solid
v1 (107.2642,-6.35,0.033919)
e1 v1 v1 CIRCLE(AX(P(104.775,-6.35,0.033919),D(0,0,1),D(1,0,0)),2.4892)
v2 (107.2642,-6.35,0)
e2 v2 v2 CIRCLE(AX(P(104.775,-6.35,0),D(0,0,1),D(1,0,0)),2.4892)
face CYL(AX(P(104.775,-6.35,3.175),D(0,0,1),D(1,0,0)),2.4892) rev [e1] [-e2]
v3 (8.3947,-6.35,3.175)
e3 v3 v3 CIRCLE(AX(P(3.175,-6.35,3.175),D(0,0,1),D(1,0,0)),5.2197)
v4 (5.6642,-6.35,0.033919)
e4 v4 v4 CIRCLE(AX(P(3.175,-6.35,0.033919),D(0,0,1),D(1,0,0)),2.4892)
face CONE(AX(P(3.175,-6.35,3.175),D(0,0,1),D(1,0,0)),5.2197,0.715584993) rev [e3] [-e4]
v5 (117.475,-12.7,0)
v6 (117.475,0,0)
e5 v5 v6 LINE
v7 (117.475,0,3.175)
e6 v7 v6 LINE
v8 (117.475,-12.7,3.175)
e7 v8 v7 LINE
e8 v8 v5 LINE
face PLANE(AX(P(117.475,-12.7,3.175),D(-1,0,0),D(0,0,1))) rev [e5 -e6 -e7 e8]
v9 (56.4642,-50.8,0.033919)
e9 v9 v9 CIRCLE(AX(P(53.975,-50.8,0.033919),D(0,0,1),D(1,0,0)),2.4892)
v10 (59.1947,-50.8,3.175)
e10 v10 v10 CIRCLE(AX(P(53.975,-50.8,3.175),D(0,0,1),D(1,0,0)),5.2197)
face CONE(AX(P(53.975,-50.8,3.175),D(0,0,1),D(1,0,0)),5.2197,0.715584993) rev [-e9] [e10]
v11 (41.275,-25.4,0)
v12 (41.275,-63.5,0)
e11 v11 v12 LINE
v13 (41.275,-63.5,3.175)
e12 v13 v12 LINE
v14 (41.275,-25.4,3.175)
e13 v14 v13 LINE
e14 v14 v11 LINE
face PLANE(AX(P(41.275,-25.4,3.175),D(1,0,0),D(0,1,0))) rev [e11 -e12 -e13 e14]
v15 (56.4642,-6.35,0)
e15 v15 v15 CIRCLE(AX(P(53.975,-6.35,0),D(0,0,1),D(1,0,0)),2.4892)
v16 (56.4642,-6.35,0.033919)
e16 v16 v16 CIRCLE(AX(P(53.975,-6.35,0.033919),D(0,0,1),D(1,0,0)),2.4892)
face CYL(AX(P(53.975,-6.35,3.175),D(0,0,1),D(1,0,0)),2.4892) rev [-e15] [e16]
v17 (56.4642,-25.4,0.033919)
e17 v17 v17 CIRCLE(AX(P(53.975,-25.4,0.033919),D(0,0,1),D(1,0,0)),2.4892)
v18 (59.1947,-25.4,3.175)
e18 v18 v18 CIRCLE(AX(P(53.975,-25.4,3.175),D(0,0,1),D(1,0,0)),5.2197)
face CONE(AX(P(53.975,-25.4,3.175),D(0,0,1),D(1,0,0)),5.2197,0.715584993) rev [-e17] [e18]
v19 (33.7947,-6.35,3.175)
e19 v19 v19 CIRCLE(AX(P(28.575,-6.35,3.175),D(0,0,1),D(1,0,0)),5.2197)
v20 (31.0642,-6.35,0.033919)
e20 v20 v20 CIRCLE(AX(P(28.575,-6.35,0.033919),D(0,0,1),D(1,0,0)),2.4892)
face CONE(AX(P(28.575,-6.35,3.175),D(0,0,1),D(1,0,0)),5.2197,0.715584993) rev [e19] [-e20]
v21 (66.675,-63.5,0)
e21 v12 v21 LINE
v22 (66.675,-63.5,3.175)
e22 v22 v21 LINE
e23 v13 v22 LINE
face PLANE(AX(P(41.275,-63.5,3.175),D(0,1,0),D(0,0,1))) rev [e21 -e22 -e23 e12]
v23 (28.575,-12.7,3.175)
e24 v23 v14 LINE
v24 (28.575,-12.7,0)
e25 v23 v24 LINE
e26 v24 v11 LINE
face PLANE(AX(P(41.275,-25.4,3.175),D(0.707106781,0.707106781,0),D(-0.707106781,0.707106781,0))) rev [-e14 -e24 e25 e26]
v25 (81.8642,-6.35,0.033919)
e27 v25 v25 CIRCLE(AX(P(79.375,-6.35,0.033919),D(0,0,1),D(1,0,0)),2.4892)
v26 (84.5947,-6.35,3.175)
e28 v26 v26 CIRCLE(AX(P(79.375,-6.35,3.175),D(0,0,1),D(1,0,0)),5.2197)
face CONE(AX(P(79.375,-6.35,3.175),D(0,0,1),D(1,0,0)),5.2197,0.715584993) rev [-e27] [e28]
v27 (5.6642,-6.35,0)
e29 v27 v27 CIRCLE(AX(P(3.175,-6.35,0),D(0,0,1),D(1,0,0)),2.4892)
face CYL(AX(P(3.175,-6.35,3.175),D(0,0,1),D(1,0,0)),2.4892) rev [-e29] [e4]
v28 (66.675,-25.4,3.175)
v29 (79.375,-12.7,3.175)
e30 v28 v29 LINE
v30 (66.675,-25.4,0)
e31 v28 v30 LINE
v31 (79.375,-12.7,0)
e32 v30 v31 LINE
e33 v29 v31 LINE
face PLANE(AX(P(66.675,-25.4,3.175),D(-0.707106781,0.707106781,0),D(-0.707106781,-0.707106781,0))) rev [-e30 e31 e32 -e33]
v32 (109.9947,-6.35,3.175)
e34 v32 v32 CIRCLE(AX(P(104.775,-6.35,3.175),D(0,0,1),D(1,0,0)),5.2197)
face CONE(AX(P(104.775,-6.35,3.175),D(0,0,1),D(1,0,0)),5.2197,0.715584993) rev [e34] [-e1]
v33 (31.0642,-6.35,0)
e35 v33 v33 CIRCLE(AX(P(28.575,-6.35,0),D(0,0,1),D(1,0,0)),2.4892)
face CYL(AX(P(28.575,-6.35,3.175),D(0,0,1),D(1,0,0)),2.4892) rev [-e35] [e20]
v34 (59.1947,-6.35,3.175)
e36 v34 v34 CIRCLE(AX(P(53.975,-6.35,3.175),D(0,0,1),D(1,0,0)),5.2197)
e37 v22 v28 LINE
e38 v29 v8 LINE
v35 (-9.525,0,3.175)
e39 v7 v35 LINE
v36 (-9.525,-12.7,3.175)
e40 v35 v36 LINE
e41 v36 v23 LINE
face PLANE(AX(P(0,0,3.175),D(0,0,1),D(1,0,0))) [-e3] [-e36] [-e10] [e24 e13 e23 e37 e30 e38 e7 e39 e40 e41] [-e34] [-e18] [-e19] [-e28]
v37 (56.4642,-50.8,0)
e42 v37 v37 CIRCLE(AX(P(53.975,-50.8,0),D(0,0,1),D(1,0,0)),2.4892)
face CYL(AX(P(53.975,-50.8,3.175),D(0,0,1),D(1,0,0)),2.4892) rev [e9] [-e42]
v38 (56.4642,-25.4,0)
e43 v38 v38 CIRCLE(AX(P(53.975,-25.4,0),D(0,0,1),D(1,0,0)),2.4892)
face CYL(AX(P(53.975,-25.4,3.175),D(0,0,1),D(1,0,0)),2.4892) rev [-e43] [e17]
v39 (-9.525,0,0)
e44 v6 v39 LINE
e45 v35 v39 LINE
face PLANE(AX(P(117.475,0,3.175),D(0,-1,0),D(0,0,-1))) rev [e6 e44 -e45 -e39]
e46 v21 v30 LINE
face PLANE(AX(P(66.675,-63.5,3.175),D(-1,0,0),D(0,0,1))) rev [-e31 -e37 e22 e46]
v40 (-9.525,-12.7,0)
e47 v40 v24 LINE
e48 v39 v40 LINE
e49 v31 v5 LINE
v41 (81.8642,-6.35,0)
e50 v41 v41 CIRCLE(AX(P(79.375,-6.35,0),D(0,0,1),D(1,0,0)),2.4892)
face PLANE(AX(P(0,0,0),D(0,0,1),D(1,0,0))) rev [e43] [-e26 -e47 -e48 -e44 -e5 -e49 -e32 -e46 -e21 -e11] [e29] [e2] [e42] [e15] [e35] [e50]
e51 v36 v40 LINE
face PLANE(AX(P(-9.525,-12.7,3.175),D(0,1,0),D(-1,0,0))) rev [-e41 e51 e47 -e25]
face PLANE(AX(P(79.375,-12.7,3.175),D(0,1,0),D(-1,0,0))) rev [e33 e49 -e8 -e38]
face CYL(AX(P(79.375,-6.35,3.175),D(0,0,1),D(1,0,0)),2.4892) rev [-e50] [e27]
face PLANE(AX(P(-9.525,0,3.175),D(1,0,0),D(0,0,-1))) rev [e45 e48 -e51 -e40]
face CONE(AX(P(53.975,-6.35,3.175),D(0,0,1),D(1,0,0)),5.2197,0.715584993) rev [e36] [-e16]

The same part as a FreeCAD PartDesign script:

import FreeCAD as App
import Part
import Sketcher
Q = App.Units.Quantity


def add_polygon(sketch, points):
    """Adds a closed chain of lines whose ends are joined by coincident constraints."""
    first, n = sketch.GeometryCount, len(points)
    for a, b in zip(points, points[1:] + points[:1]):
        sketch.addGeometry(Part.LineSegment(App.Vector(*a, 0), App.Vector(*b, 0)), False)
    for i in range(n):
        sketch.addConstraint(Sketcher.Constraint("Coincident", first + i, 2, first + (i + 1) % n, 1))

doc = App.newDocument("Part")
body = doc.addObject("PartDesign::Body", "Body")

# Sketch on XY plane
sketch1 = doc.addObject("Sketcher::SketchObject", "Sketch")
body.addObject(sketch1)
sketch1.AttachmentSupport = (doc.XY_Plane, [""])
sketch1.MapMode = "FlatFace"
add_polygon(sketch1, [(41, -25), (41, -64), (67, -64), (67, -25), (79, -13), (117, -13), (117, 0), (-10, 0), (-10, -13), (29, -13)])  # lines 0-9
sketch1.addConstraint([
    Sketcher.Constraint("Vertical", 0),
    Sketcher.Constraint("Horizontal", 1),
    Sketcher.Constraint("Vertical", 2),
    Sketcher.Constraint("Horizontal", 4),
    Sketcher.Constraint("Vertical", 5),
    Sketcher.Constraint("Horizontal", 6),
    Sketcher.Constraint("Vertical", 7),
    Sketcher.Constraint("Horizontal", 8),
    Sketcher.Constraint("PointOnObject", 5, 2, -1),
    Sketcher.Constraint("Perpendicular", 3, 9),
    Sketcher.Constraint("Horizontal", 4, 2, 7, 2),
    Sketcher.Constraint("Horizontal", 2, 2, 9, 2),
    Sketcher.Constraint("Equal", 4, 8),
    Sketcher.Constraint("Equal", 8, 0),
    Sketcher.Constraint("Equal", 3, 9),
    Sketcher.Constraint("DistanceX", 1, 1, 1, 2, Q("1 in")),
    Sketcher.Constraint("DistanceX", 6, 2, 6, 1, Q("5 in")),
    Sketcher.Constraint("DistanceX", 4, 1, 4, 2, Q("1.5 in")),
    Sketcher.Constraint("DistanceY", 5, 1, 5, 2, Q("0.5 in")),
    Sketcher.Constraint("DistanceX", -1, 1, 0, 2, Q("1.625 in")),
])
pad1 = doc.addObject("PartDesign::Pad", "Pad")
body.addObject(pad1)
pad1.Profile = sketch1
pad1.Length = Q("0.125 in")

# Sketch on YZ plane
sketch2 = doc.addObject("Sketcher::SketchObject", "Sketch001")
body.addObject(sketch2)
sketch2.AttachmentSupport = (doc.YZ_Plane, [""])
sketch2.MapMode = "FlatFace"
sketch2.AttachmentOffset = App.Placement(App.Vector(0, 0, 0.125 * 25.4), App.Rotation())
add_polygon(sketch2, [(-6.35, 0), (-6.35, 3.175), (-11.57, 3.175), (-8.839, 0.034), (-8.839, 0)])  # lines 0-4
sketch2.addGeometry(Part.LineSegment(App.Vector(-6.35, 3.175, 0), App.Vector(-6.35, 0, 0)), True)  # axis
sketch2.addConstraint([
    Sketcher.Constraint("Vertical", 0),
    Sketcher.Constraint("Horizontal", 1),
    Sketcher.Constraint("Vertical", 3),
    Sketcher.Constraint("Horizontal", 4),
    Sketcher.Constraint("Vertical", 5),
    Sketcher.Constraint("Coincident", 5, 1, 0, 2),
    Sketcher.Constraint("PointOnObject", 3, 2, -1),
    Sketcher.Constraint("PointOnObject", 5, 2, -1),
    Sketcher.Constraint("Angle", 2, Q("-49 deg")),
    Sketcher.Constraint("DistanceX", 4, 1, 4, 2, Q("0.098 in")),
    Sketcher.Constraint("DistanceY", 0, 1, 0, 2, Q("0.125 in")),
    Sketcher.Constraint("DistanceX", 0, 2, -1, 1, Q("0.25 in")),
    Sketcher.Constraint("DistanceX", 1, 2, 1, 1, Q("0.2055 in")),
])
groove = doc.addObject("PartDesign::Groove", "Groove")
body.addObject(groove)
groove.Profile = sketch2
groove.ReferenceAxis = (sketch2, ["Axis0"])
groove.Angle = 360
doc.recompute()

linearpattern = doc.addObject("PartDesign::LinearPattern", "LinearPattern")
body.addObject(linearpattern)
linearpattern.Originals = [groove]
linearpattern.Direction = (doc.X_Axis, [""])
linearpattern.Mode = "offset"
linearpattern.Offset = Q("1 in")
linearpattern.Occurrences = 2
body.Tip = linearpattern
doc.recompute()

linearpattern2 = doc.addObject("PartDesign::LinearPattern", "LinearPattern001")
body.addObject(linearpattern2)
linearpattern2.Originals = [groove]
linearpattern2.Direction = (doc.X_Axis, [""])
linearpattern2.Mode = "offset"
linearpattern2.Offset = Q("2 in")
linearpattern2.Occurrences = 2
body.Tip = linearpattern2
doc.recompute()

linearpattern3 = doc.addObject("PartDesign::LinearPattern", "LinearPattern002")
body.addObject(linearpattern3)
linearpattern3.Originals = [groove]
linearpattern3.Direction = (doc.X_Axis, [""])
linearpattern3.Mode = "offset"
linearpattern3.Offset = Q("4 in")
linearpattern3.Occurrences = 2
body.Tip = linearpattern3
doc.recompute()

datumline = doc.addObject("PartDesign::Line", "DatumLine")
body.addObject(datumline)
datumline.Placement = App.Placement(App.Vector(0, 0, 0), App.Rotation(App.Vector(0, 0, 1), App.Vector(0.936329178, -0.351123442, 0)))
linearpattern4 = doc.addObject("PartDesign::LinearPattern", "LinearPattern003")
body.addObject(linearpattern4)
linearpattern4.Originals = [groove]
linearpattern4.Direction = (datumline, [""])
linearpattern4.Mode = "offset"
linearpattern4.Offset = 54.254424
linearpattern4.Occurrences = 2
body.Tip = linearpattern4
doc.recompute()

datumline2 = doc.addObject("PartDesign::Line", "DatumLine001")
body.addObject(datumline2)
datumline2.Placement = App.Placement(App.Vector(0, 0, 0), App.Rotation(App.Vector(0, 0, 1), App.Vector(0.752576695, -0.658504608, 0)))
linearpattern5 = doc.addObject("PartDesign::LinearPattern", "LinearPattern004")
body.addObject(linearpattern5)
linearpattern5.Originals = [groove]
linearpattern5.Direction = (datumline2, [""])
linearpattern5.Mode = "offset"
linearpattern5.Offset = 67.501426
linearpattern5.Occurrences = 2
body.Tip = linearpattern5
doc.recompute()

linearpattern6 = doc.addObject("PartDesign::LinearPattern", "LinearPattern005")
body.addObject(linearpattern6)
linearpattern6.Originals = [groove]
linearpattern6.Direction = (doc.X_Axis, [""])
linearpattern6.Mode = "offset"
linearpattern6.Offset = Q("3 in")
linearpattern6.Occurrences = 2
body.Tip = linearpattern6

doc.recompute()
